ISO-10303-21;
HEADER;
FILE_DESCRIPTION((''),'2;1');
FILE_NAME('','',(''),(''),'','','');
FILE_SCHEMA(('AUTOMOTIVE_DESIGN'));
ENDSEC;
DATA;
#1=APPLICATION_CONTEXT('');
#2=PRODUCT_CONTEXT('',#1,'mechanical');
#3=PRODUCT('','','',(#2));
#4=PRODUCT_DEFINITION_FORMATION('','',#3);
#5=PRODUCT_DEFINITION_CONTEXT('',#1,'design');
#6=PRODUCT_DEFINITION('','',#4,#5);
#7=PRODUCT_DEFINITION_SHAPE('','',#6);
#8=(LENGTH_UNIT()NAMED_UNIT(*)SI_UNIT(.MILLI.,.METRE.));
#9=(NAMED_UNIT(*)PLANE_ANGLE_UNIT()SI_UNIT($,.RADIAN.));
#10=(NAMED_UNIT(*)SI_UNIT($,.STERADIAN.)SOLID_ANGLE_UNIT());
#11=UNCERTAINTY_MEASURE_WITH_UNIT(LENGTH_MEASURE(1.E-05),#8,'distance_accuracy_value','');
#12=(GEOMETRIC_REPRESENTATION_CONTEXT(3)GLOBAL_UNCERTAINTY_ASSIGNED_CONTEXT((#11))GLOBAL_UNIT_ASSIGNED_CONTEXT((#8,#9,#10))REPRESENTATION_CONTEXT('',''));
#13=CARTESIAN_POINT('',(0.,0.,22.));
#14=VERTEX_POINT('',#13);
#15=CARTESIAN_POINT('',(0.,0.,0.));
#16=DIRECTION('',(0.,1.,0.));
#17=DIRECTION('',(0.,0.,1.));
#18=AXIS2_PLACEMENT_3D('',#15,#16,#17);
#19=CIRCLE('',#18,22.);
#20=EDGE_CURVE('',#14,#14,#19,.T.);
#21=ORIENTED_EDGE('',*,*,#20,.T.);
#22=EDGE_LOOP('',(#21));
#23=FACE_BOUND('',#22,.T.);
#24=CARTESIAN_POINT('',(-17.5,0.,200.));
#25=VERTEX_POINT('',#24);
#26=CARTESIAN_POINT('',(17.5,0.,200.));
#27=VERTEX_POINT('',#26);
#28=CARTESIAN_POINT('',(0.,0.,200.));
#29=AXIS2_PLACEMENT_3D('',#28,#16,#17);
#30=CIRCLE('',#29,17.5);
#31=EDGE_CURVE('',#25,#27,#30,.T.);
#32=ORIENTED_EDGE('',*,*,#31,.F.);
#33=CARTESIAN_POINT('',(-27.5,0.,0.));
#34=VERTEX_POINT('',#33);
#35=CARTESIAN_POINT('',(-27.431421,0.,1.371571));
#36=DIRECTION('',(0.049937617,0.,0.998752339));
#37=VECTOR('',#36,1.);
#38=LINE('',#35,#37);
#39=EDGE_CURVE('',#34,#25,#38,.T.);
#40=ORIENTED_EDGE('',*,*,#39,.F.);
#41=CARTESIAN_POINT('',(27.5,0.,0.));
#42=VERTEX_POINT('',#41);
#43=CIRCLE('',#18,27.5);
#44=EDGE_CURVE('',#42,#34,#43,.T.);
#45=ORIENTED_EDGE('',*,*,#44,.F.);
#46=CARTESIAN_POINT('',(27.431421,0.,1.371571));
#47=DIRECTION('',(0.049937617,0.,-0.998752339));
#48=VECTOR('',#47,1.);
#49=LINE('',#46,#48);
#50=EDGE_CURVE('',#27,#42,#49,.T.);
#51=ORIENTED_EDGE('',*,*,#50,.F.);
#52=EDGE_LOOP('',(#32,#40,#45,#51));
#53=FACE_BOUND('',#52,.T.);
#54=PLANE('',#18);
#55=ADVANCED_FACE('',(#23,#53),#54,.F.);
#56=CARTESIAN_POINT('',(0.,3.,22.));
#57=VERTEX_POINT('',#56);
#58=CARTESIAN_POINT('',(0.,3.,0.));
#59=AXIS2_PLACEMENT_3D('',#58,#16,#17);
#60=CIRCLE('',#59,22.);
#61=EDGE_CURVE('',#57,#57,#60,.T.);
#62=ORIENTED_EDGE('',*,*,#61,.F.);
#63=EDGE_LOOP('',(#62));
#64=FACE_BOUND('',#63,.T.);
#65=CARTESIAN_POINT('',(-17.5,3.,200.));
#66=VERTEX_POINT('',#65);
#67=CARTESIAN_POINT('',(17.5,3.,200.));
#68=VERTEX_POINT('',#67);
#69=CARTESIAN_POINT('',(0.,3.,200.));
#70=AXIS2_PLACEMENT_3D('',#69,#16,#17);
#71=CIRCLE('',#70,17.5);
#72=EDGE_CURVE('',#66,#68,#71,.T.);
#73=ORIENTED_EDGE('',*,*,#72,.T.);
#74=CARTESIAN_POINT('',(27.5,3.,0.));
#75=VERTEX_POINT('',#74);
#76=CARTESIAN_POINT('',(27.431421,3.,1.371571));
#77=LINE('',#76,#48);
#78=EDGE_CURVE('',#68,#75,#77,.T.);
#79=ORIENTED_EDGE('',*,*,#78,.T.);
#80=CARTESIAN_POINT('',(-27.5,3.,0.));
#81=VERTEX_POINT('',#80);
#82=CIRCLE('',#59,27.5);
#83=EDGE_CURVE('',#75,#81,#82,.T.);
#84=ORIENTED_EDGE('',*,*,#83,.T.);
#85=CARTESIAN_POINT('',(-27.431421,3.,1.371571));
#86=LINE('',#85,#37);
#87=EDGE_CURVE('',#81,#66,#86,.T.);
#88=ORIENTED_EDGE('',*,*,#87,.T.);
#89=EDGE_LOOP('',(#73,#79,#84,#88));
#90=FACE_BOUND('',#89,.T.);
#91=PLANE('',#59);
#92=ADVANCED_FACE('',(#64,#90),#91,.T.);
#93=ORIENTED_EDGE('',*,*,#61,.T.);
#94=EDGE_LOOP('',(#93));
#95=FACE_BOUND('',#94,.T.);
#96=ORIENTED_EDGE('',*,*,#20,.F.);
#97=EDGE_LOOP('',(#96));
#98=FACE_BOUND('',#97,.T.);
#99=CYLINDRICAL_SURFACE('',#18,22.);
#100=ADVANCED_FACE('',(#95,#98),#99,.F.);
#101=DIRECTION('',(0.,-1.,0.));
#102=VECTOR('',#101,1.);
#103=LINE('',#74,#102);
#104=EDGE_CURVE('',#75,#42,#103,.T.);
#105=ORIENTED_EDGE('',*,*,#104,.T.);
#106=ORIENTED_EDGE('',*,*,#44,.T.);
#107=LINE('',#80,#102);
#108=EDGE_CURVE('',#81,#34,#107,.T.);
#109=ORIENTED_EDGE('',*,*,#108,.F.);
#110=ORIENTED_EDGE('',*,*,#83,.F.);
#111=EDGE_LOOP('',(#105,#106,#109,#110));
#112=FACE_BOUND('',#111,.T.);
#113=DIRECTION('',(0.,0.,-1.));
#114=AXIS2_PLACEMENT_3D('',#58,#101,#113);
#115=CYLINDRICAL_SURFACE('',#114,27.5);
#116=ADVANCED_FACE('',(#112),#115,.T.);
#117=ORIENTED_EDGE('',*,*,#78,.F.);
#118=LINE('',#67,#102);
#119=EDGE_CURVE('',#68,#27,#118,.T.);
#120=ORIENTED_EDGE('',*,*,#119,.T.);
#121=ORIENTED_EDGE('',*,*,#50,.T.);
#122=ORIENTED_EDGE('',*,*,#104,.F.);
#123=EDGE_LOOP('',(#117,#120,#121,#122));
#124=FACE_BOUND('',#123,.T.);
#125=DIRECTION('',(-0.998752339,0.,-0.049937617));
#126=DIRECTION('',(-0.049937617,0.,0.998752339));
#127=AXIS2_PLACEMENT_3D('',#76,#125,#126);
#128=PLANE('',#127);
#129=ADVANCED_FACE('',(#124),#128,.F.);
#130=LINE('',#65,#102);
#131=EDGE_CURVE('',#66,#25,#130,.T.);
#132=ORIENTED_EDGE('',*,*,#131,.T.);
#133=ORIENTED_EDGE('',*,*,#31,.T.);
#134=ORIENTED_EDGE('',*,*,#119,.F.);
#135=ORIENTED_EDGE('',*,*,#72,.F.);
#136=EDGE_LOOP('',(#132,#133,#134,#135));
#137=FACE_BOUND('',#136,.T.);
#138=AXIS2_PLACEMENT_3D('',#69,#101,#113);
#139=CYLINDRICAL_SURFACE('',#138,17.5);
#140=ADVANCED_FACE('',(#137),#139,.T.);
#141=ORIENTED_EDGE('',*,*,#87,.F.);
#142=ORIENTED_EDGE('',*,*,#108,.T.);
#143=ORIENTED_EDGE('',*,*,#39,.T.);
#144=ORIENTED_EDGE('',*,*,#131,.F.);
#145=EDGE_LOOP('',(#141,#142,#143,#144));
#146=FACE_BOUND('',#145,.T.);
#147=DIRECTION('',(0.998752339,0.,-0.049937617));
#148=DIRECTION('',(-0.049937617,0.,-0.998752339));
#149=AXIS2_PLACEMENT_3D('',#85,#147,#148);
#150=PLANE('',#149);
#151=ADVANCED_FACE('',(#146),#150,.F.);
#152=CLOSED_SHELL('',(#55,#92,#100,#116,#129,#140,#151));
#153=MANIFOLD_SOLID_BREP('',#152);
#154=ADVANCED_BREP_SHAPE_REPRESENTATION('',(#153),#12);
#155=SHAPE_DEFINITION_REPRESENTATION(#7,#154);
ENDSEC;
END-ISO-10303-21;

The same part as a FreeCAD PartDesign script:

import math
import FreeCAD as App
import Part
import Sketcher
Q = App.Units.Quantity

doc = App.newDocument("Part")
body = doc.addObject("PartDesign::Body", "Body")

# Sketch on XZ plane
sketch1 = body.newObject("Sketcher::SketchObject", "Sketch")
sketch1.AttachmentSupport = (doc.getObject("XZ_Plane"), [""])
sketch1.MapMode = "FlatFace"
sketch1.addGeometry([
    Part.ArcOfCircle(Part.Circle(App.Vector(0, 0, 0), App.Vector(0, 0, 1), 27.5), math.radians(180), math.radians(360)),  # 0
    Part.LineSegment(App.Vector(-27.5, 0, 0), App.Vector(-27.4, 2.7, 0)),  # 1
    Part.LineSegment(App.Vector(-27.4, 2.7, 0), App.Vector(-17.5, 200, 0)),  # 2
    Part.ArcOfCircle(Part.Circle(App.Vector(0, 200, 0), App.Vector(0, 0, 1), 17.5), math.radians(0), math.radians(180)),  # 3
    Part.LineSegment(App.Vector(17.5, 200, 0), App.Vector(27.4, 2.7, 0)),  # 4
    Part.LineSegment(App.Vector(27.4, 2.7, 0), App.Vector(27.5, 0, 0)),  # 5
], False)
sketch1.addConstraint([
    Sketcher.Constraint("Coincident", 0, 1, 1, 1),
    Sketcher.Constraint("Coincident", 1, 2, 2, 1),
    Sketcher.Constraint("Coincident", 2, 2, 3, 2),
    Sketcher.Constraint("Coincident", 3, 1, 4, 1),
    Sketcher.Constraint("Coincident", 4, 2, 5, 1),
    Sketcher.Constraint("Coincident", 5, 2, 0, 2),
    Sketcher.Constraint("Coincident", 0, 3, -1, 1),
    Sketcher.Constraint("Symmetric", 2, 2, 3, 1, -2),
    Sketcher.Constraint("Symmetric", 1, 2, 4, 2, -2),
    Sketcher.Constraint("PointOnObject", 0, 1, -1),
    Sketcher.Constraint("PointOnObject", 5, 2, -1),
    Sketcher.Constraint("Parallel", 1, 2),
    Sketcher.Constraint("Horizontal", 3, 3, 2, 2),
    Sketcher.Constraint("Radius", 0, Q("27.5 mm")),
    Sketcher.Constraint("Radius", 3, Q("17.5 mm")),
    Sketcher.Constraint("DistanceY", -1, 1, 3, 3, Q("200 mm")),
    Sketcher.Constraint("Distance", 1, Q("2.746569 mm")),
])
pad1 = body.newObject("PartDesign::Pad", "Pad")
pad1.Profile = sketch1
pad1.Length = 3
pad1.Reversed = True

# Sketch on XZ plane
sketch2 = body.newObject("Sketcher::SketchObject", "Sketch001")
sketch2.AttachmentSupport = (doc.getObject("XZ_Plane"), [""])
sketch2.MapMode = "FlatFace"
sketch2.AttachmentOffset = App.Placement(App.Vector(0, 0, -3), App.Rotation())
sketch2.addGeometry(Part.Circle(App.Vector(0, 0, 0), App.Vector(0, 0, 1), 22), False)
sketch2.addConstraint([
    Sketcher.Constraint("Coincident", 0, 3, -1, 1),
    Sketcher.Constraint("Diameter", 0, Q("44 mm")),
])
pocket1 = body.newObject("PartDesign::Pocket", "Pocket")
pocket1.Profile = sketch2
pocket1.Type = "ThroughAll"
pocket1.Reversed = True

doc.recompute()
